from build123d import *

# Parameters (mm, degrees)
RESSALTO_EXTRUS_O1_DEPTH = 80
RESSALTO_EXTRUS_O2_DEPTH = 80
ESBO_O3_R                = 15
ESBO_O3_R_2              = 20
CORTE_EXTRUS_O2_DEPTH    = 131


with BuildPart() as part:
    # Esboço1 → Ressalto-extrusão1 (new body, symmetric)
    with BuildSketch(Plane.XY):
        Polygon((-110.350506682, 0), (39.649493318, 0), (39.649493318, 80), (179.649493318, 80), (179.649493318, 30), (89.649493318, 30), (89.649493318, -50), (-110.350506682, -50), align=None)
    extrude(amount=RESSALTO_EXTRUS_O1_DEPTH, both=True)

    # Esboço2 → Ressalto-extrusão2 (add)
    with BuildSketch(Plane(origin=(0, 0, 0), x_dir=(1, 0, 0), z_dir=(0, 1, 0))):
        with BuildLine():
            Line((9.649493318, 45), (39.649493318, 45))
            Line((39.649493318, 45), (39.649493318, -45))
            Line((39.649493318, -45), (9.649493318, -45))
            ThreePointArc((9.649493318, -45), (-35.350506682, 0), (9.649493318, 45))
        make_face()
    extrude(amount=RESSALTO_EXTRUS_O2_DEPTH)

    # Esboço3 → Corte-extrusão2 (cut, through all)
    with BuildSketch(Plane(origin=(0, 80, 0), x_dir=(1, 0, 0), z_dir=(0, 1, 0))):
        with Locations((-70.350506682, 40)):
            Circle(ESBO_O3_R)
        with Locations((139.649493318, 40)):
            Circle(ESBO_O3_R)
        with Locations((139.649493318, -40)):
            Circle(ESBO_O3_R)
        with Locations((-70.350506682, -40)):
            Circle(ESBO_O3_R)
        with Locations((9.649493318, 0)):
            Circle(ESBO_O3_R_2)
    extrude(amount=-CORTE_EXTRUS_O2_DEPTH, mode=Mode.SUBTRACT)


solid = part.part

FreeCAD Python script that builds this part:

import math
import FreeCAD as App
import Part
import Sketcher
from FreeCAD import Vector

doc = App.newDocument("Part")
body = doc.addObject("PartDesign::Body", "Body")

sketch1 = doc.addObject("Sketcher::SketchObject", "Sketch")
body.addObject(sketch1)
sketch1.AttachmentSupport = (doc.XY_Plane, [""])
sketch1.MapMode = "FlatFace"
sketch1.addGeometry([
    Part.LineSegment(Vector(40, 0, 0), Vector(-110, 0, 0)),
    Part.LineSegment(Vector(-110, 0, 0), Vector(-110, -50, 0)),
    Part.LineSegment(Vector(-110, -50, 0), Vector(90, -50, 0)),
    Part.LineSegment(Vector(90, -50, 0), Vector(90, 30, 0)),
    Part.LineSegment(Vector(90, 30, 0), Vector(180, 30, 0)),
    Part.LineSegment(Vector(180, 30, 0), Vector(180, 80, 0)),
    Part.LineSegment(Vector(180, 80, 0), Vector(40, 80, 0)),
    Part.LineSegment(Vector(40, 80, 0), Vector(40, 0, 0)),
], False)
sketch1.addConstraint([
    Sketcher.Constraint("Coincident", 0, 2, 1, 1),
    Sketcher.Constraint("Coincident", 1, 2, 2, 1),
    Sketcher.Constraint("Coincident", 2, 2, 3, 1),
    Sketcher.Constraint("Coincident", 3, 2, 4, 1),
    Sketcher.Constraint("Coincident", 4, 2, 5, 1),
    Sketcher.Constraint("Coincident", 5, 2, 6, 1),
    Sketcher.Constraint("Coincident", 6, 2, 7, 1),
    Sketcher.Constraint("Coincident", 7, 2, 0, 1),
    Sketcher.Constraint("Horizontal", 0),
    Sketcher.Constraint("Vertical", 1),
    Sketcher.Constraint("Horizontal", 2),
    Sketcher.Constraint("Vertical", 3),
    Sketcher.Constraint("Horizontal", 4),
    Sketcher.Constraint("Vertical", 5),
    Sketcher.Constraint("Horizontal", 6),
    Sketcher.Constraint("Vertical", 7),
    Sketcher.Constraint("PointOnObject", 0, 2, -1),
    Sketcher.Constraint("Equal", 1, 5),
    Sketcher.Constraint("DistanceX", 0, 2, 0, 1, 150.0),
    Sketcher.Constraint("DistanceX", 2, 1, 2, 2, 200.0),
    Sketcher.Constraint("DistanceX", 4, 1, 4, 2, 90.0),
    Sketcher.Constraint("DistanceY", 1, 2, 1, 1, 50.0),
    Sketcher.Constraint("DistanceY", 3, 1, 3, 2, 80.0),
    Sketcher.Constraint("DistanceX", 0, 2, -1, 1, 110.350507),
])
pad1 = doc.addObject("PartDesign::Pad", "Pad")
body.addObject(pad1)
pad1.Profile = sketch1
pad1.Length = 160
pad1.Midplane = True

sketch2 = doc.addObject("Sketcher::SketchObject", "Sketch001")
body.addObject(sketch2)
sketch2.AttachmentSupport = (doc.XZ_Plane, [""])
sketch2.MapMode = "FlatFace"
sketch2.addGeometry([
    Part.LineSegment(Vector(40, -45, 0), Vector(10, -45, 0)),
    Part.ArcOfCircle(Part.Circle(Vector(10, 0, 0), Vector(0, 0, 1), 45), math.radians(90), math.radians(270)),
    Part.LineSegment(Vector(10, 45, 0), Vector(40, 45, 0)),
    Part.LineSegment(Vector(40, 45, 0), Vector(40, -45, 0)),
], False)
sketch2.addConstraint([
    Sketcher.Constraint("Tangent", 0, 2, 1, 2),
    Sketcher.Constraint("Tangent", 1, 1, 2, 1),
    Sketcher.Constraint("Coincident", 2, 2, 3, 1),
    Sketcher.Constraint("Coincident", 3, 2, 0, 1),
    Sketcher.Constraint("Horizontal", 0),
    Sketcher.Constraint("Horizontal", 2),
    Sketcher.Constraint("Vertical", 3),
    Sketcher.Constraint("PointOnObject", 1, 3, -1),
    Sketcher.Constraint("Radius", 1, 45.0),
    Sketcher.Constraint("DistanceX", 0, 2, 0, 1, 30.0),
    Sketcher.Constraint("DistanceX", -1, 1, 1, 3, 9.649493),
])
pad2 = doc.addObject("PartDesign::Pad", "Pad001")
body.addObject(pad2)
pad2.Profile = sketch2
pad2.Length = 80
pad2.Reversed = True

sketch3 = doc.addObject("Sketcher::SketchObject", "Sketch002")
body.addObject(sketch3)
sketch3.AttachmentSupport = (doc.XZ_Plane, [""])
sketch3.MapMode = "FlatFace"
sketch3.AttachmentOffset = App.Placement(Vector(0, 0, -80), App.Rotation())
sketch3.addGeometry([
    Part.Circle(Vector(-70, -40, 0), Vector(0, 0, 1), 15),
    Part.Circle(Vector(140, -40, 0), Vector(0, 0, 1), 15),
    Part.Circle(Vector(140, 40, 0), Vector(0, 0, 1), 15),
    Part.Circle(Vector(-70, 40, 0), Vector(0, 0, 1), 15),
    Part.Circle(Vector(10, 0, 0), Vector(0, 0, 1), 20),
], False)
sketch3.addConstraint([
    Sketcher.Constraint("Equal", 0, 1),
    Sketcher.Constraint("Equal", 1, 2),
    Sketcher.Constraint("Equal", 2, 3),
    Sketcher.Constraint("Symmetric", 1, 3, 2, 3, -1),
    Sketcher.Constraint("Symmetric", 0, 3, 3, 3, -1),
    Sketcher.Constraint("PointOnObject", 4, 3, -1),
    Sketcher.Constraint("Horizontal", 0, 3, 1, 3),
    Sketcher.Constraint("Diameter", 0, 30.0),
    Sketcher.Constraint("Diameter", 4, 40.0),
    Sketcher.Constraint("DistanceY", 0, 3, -1, 1, 40.0),
    Sketcher.Constraint("DistanceX", 0, 3, 1, 3, 210.0),
    Sketcher.Constraint("DistanceX", 0, 3, 4, 3, 80.0),
    Sketcher.Constraint("DistanceX", 0, 3, -1, 1, 70.350507),
])
pocket1 = doc.addObject("PartDesign::Pocket", "Pocket")
body.addObject(pocket1)
pocket1.Profile = sketch3
pocket1.Type = "ThroughAll"
pocket1.Reversed = True

doc.recompute()
